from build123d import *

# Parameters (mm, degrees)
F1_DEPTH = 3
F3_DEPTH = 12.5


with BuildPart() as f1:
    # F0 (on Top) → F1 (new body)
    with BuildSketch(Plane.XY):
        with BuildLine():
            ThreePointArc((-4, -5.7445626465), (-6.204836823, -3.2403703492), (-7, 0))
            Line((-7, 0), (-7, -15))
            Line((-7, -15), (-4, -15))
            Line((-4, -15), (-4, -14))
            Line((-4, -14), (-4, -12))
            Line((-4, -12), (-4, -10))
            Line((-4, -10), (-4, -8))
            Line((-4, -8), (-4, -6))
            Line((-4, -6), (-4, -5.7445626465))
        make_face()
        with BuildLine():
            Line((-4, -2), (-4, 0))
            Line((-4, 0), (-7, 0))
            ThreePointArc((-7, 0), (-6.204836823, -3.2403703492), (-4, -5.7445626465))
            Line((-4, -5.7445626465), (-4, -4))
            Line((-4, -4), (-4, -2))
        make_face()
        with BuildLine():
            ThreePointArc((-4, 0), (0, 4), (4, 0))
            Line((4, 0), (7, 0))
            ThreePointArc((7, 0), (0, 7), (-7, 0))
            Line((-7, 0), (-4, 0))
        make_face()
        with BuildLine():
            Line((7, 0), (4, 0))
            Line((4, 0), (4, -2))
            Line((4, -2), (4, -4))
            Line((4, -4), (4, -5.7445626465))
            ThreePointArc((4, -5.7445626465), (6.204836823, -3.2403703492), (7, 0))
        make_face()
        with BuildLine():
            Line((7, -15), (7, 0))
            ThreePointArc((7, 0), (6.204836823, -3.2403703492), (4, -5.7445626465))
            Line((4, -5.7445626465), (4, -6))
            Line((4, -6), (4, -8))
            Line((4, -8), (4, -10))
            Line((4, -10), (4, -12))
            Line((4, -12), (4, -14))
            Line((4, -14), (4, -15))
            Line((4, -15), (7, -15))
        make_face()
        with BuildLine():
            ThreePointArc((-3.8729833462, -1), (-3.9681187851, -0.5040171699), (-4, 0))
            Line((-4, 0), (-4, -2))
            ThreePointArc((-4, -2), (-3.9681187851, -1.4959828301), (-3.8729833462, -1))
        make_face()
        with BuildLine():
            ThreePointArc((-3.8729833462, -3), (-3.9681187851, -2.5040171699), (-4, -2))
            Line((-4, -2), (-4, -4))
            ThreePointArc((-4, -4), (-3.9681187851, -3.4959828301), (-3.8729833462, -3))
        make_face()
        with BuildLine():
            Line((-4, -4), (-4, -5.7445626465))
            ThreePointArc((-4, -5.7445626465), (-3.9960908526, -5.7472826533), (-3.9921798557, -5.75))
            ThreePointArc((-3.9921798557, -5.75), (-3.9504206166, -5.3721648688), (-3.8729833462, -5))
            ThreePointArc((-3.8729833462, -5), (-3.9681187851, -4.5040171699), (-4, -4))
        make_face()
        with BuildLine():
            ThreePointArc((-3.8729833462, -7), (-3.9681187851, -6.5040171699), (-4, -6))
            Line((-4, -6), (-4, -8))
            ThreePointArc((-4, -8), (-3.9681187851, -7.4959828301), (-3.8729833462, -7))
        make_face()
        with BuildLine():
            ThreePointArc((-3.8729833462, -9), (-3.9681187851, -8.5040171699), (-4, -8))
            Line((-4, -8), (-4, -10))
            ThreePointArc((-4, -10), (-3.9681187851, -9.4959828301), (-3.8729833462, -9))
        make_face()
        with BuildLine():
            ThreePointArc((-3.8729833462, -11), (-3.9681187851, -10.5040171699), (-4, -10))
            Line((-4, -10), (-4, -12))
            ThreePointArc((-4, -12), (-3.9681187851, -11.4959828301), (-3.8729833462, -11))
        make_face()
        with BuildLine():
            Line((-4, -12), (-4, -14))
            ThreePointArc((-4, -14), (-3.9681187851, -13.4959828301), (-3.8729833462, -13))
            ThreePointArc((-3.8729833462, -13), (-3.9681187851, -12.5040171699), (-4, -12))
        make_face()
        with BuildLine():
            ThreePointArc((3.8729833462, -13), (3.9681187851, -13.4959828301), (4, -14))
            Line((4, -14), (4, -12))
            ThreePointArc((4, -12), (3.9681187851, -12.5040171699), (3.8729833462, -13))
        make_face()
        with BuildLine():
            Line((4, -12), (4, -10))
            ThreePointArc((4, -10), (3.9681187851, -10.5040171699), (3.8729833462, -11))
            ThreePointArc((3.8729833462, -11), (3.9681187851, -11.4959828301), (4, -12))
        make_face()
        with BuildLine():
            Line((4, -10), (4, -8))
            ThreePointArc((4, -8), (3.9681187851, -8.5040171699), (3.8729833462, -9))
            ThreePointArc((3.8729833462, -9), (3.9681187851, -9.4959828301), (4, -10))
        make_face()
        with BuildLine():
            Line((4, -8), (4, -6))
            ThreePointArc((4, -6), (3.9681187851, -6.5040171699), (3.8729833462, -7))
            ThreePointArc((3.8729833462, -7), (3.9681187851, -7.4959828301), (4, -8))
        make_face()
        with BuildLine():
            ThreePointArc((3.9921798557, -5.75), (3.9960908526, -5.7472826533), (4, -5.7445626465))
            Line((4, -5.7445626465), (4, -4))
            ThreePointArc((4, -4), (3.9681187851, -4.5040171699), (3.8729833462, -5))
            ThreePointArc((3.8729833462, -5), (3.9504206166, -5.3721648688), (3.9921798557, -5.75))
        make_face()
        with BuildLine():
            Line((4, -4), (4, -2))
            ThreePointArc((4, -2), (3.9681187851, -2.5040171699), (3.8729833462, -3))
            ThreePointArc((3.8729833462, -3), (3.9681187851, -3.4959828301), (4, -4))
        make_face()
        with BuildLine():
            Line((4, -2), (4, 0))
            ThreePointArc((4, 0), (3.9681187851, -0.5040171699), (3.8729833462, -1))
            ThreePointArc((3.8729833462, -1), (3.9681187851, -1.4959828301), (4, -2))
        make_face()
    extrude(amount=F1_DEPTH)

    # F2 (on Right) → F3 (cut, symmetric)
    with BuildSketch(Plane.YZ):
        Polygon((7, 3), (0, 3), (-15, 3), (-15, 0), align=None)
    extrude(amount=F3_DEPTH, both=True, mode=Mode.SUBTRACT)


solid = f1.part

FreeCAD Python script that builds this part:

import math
import FreeCAD as App
import Part
import Sketcher

V = App.Vector

doc = App.newDocument("Part")
body = doc.addObject("PartDesign::Body", "Body")

sketch1 = body.newObject("Sketcher::SketchObject", "Sketch")
sketch1.AttachmentSupport = (doc.getObject("XY_Plane"), [""])
sketch1.MapMode = "FlatFace"
sketch1.addGeometry([
    Part.LineSegment(V(-7, 0, 0), V(-7, -15, 0)),
    Part.LineSegment(V(-7, -15, 0), V(-4, -15, 0)),
    Part.LineSegment(V(-4, -15, 0), V(-4, -14, 0)),
    Part.ArcOfCircle(Part.Circle(V(0, -14, 0), V(0, 0, 1), 4), math.radians(165.522488), math.radians(180)),
    Part.ArcOfCircle(Part.Circle(V(0, -12, 0), V(0, 0, 1), 4), math.radians(180), math.radians(194.477512)),
    Part.ArcOfCircle(Part.Circle(V(0, -12, 0), V(0, 0, 1), 4), math.radians(165.522488), math.radians(180)),
    Part.ArcOfCircle(Part.Circle(V(0, -10, 0), V(0, 0, 1), 4), math.radians(180), math.radians(194.477512)),
    Part.ArcOfCircle(Part.Circle(V(0, -10, 0), V(0, 0, 1), 4), math.radians(165.522488), math.radians(180)),
    Part.ArcOfCircle(Part.Circle(V(0, -8, 0), V(0, 0, 1), 4), math.radians(180), math.radians(194.477512)),
    Part.ArcOfCircle(Part.Circle(V(0, -8, 0), V(0, 0, 1), 4), math.radians(165.522488), math.radians(180)),
    Part.ArcOfCircle(Part.Circle(V(0, -6, 0), V(0, 0, 1), 4), math.radians(180), math.radians(194.477512)),
    Part.LineSegment(V(-4, -6, 0), V(-4, -5.744563, 0)),
    Part.ArcOfCircle(Part.Circle(V(0.000133, 0.000191, 0), V(0, 0, 1), 7.000233), math.radians(-124.849904), math.radians(-124.771946)),
    Part.ArcOfCircle(Part.Circle(V(0, -6, 0), V(0, 0, 1), 4), math.radians(165.522488), math.radians(176.416678)),
    Part.ArcOfCircle(Part.Circle(V(0, -4, 0), V(0, 0, 1), 4), math.radians(180), math.radians(194.477512)),
    Part.ArcOfCircle(Part.Circle(V(0, -4, 0), V(0, 0, 1), 4), math.radians(165.522488), math.radians(180)),
    Part.ArcOfCircle(Part.Circle(V(0, -2, 0), V(0, 0, 1), 4), math.radians(180), math.radians(194.477512)),
    Part.ArcOfCircle(Part.Circle(V(0, -2, 0), V(0, 0, 1), 4), math.radians(165.522488), math.radians(180)),
    Part.ArcOfCircle(Part.Circle(V(0, 0, 0), V(0, 0, 1), 4), math.radians(180), math.radians(194.477512)),
    Part.ArcOfCircle(Part.Circle(V(0, 0, 0), V(0, 0, 1), 4), math.radians(0), math.radians(180)),
    Part.ArcOfCircle(Part.Circle(V(0, 0, 0), V(0, 0, 1), 4), math.radians(-14.477512), math.radians(0)),
    Part.ArcOfCircle(Part.Circle(V(0, -2, 0), V(0, 0, 1), 4), math.radians(0), math.radians(14.477512)),
    Part.ArcOfCircle(Part.Circle(V(0, -2, 0), V(0, 0, 1), 4), math.radians(-14.477512), math.radians(0)),
    Part.ArcOfCircle(Part.Circle(V(0, -4, 0), V(0, 0, 1), 4), math.radians(0), math.radians(14.477512)),
    Part.ArcOfCircle(Part.Circle(V(0, -4, 0), V(0, 0, 1), 4), math.radians(-14.477512), math.radians(0)),
    Part.ArcOfCircle(Part.Circle(V(0, -6, 0), V(0, 0, 1), 4), math.radians(3.583322), math.radians(14.477512)),
    Part.ArcOfCircle(Part.Circle(V(-0.000133, 0.000191, 0), V(0, 0, 1), 7.000233), math.radians(-55.228054), math.radians(-55.150096)),
    Part.LineSegment(V(4, -5.744563, 0), V(4, -6, 0)),
    Part.ArcOfCircle(Part.Circle(V(0, -6, 0), V(0, 0, 1), 4), math.radians(-14.477512), math.radians(0)),
    Part.ArcOfCircle(Part.Circle(V(0, -8, 0), V(0, 0, 1), 4), math.radians(0), math.radians(14.477512)),
    Part.ArcOfCircle(Part.Circle(V(0, -8, 0), V(0, 0, 1), 4), math.radians(-14.477512), math.radians(0)),
    Part.ArcOfCircle(Part.Circle(V(0, -10, 0), V(0, 0, 1), 4), math.radians(0), math.radians(14.477512)),
    Part.ArcOfCircle(Part.Circle(V(0, -10, 0), V(0, 0, 1), 4), math.radians(-14.477512), math.radians(0)),
    Part.ArcOfCircle(Part.Circle(V(0, -12, 0), V(0, 0, 1), 4), math.radians(0), math.radians(14.477512)),
    Part.ArcOfCircle(Part.Circle(V(0, -12, 0), V(0, 0, 1), 4), math.radians(-14.477512), math.radians(0)),
    Part.ArcOfCircle(Part.Circle(V(0, -14, 0), V(0, 0, 1), 4), math.radians(0), math.radians(14.477512)),
    Part.LineSegment(V(4, -14, 0), V(4, -15, 0)),
    Part.LineSegment(V(4, -15, 0), V(7, -15, 0)),
    Part.LineSegment(V(7, -15, 0), V(7, 0, 0)),
    Part.ArcOfCircle(Part.Circle(V(0, 0, 0), V(0, 0, 1), 7), math.radians(0), math.radians(180)),
], False)
sketch1.addConstraint([
    Sketcher.Constraint("Coincident", 0, 2, 1, 1),
    Sketcher.Constraint("Coincident", 1, 2, 2, 1),
    Sketcher.Constraint("Tangent", 2, 2, 3, 2),
    Sketcher.Constraint("Coincident", 3, 1, 4, 2),
    Sketcher.Constraint("Tangent", 4, 1, 5, 2),
    Sketcher.Constraint("Coincident", 5, 1, 6, 2),
    Sketcher.Constraint("Tangent", 6, 1, 7, 2),
    Sketcher.Constraint("Coincident", 7, 1, 8, 2),
    Sketcher.Constraint("Tangent", 8, 1, 9, 2),
    Sketcher.Constraint("Coincident", 9, 1, 10, 2),
    Sketcher.Constraint("Tangent", 10, 1, 11, 1),
    Sketcher.Constraint("Coincident", 11, 2, 12, 1),
    Sketcher.Constraint("Coincident", 12, 2, 13, 2),
    Sketcher.Constraint("Coincident", 13, 1, 14, 2),
    Sketcher.Constraint("Tangent", 14, 1, 15, 2),
    Sketcher.Constraint("Coincident", 15, 1, 16, 2),
    Sketcher.Constraint("Tangent", 16, 1, 17, 2),
    Sketcher.Constraint("Coincident", 17, 1, 18, 2),
    Sketcher.Constraint("Tangent", 18, 1, 19, 2),
    Sketcher.Constraint("Tangent", 19, 1, 20, 2),
    Sketcher.Constraint("Coincident", 20, 1, 21, 2),
    Sketcher.Constraint("Tangent", 21, 1, 22, 2),
    Sketcher.Constraint("Coincident", 22, 1, 23, 2),
    Sketcher.Constraint("Tangent", 23, 1, 24, 2),
    Sketcher.Constraint("Coincident", 24, 1, 25, 2),
    Sketcher.Constraint("Coincident", 25, 1, 26, 1),
    Sketcher.Constraint("Coincident", 26, 2, 27, 1),
    Sketcher.Constraint("Tangent", 27, 2, 28, 2),
    Sketcher.Constraint("Coincident", 28, 1, 29, 2),
    Sketcher.Constraint("Tangent", 29, 1, 30, 2),
    Sketcher.Constraint("Coincident", 30, 1, 31, 2),
    Sketcher.Constraint("Tangent", 31, 1, 32, 2),
    Sketcher.Constraint("Coincident", 32, 1, 33, 2),
    Sketcher.Constraint("Tangent", 33, 1, 34, 2),
    Sketcher.Constraint("Coincident", 34, 1, 35, 2),
    Sketcher.Constraint("Tangent", 35, 1, 36, 1),
    Sketcher.Constraint("Coincident", 36, 2, 37, 1),
    Sketcher.Constraint("Coincident", 37, 2, 38, 1),
    Sketcher.Constraint("Tangent", 38, 2, 39, 1),
    Sketcher.Constraint("Tangent", 39, 2, 0, 1),
    Sketcher.Constraint("Vertical", 0),
    Sketcher.Constraint("Horizontal", 1),
    Sketcher.Constraint("Vertical", 2),
    Sketcher.Constraint("Vertical", 11),
    Sketcher.Constraint("Vertical", 27),
    Sketcher.Constraint("Vertical", 36),
    Sketcher.Constraint("Horizontal", 37),
    Sketcher.Constraint("Vertical", 38),
    Sketcher.Constraint("Coincident", 18, 3, -1, 1),
    Sketcher.Constraint("Coincident", 39, 3, -1, 1),
    Sketcher.Constraint("Coincident", 13, 3, 10, 3),
    Sketcher.Constraint("Coincident", 21, 3, 16, 3),
    Sketcher.Constraint("Coincident", 23, 3, 14, 3),
    Sketcher.Constraint("Coincident", 25, 3, 10, 3),
    Sketcher.Constraint("Coincident", 28, 3, 10, 3),
    Sketcher.Constraint("Coincident", 29, 3, 8, 3),
    Sketcher.Constraint("Coincident", 31, 3, 6, 3),
    Sketcher.Constraint("Coincident", 33, 3, 4, 3),
    Sketcher.Constraint("Coincident", 35, 3, 3, 3),
    Sketcher.Constraint("Equal", 3, 4),
    Sketcher.Constraint("Equal", 4, 5),
    Sketcher.Constraint("Equal", 5, 6),
    Sketcher.Constraint("Equal", 6, 7),
    Sketcher.Constraint("Equal", 7, 8),
    Sketcher.Constraint("Equal", 8, 9),
    Sketcher.Constraint("Equal", 9, 10),
    Sketcher.Constraint("Equal", 10, 13),
    Sketcher.Constraint("Equal", 13, 14),
    Sketcher.Constraint("Equal", 14, 15),
    Sketcher.Constraint("Equal", 15, 16),
    Sketcher.Constraint("Equal", 16, 17),
    Sketcher.Constraint("Equal", 17, 18),
    Sketcher.Constraint("Equal", 18, 19),
    Sketcher.Constraint("Equal", 19, 20),
    Sketcher.Constraint("Equal", 20, 21),
    Sketcher.Constraint("Equal", 21, 22),
    Sketcher.Constraint("Equal", 22, 23),
    Sketcher.Constraint("Equal", 23, 24),
    Sketcher.Constraint("Equal", 24, 25),
    Sketcher.Constraint("Equal", 12, 26),
    Sketcher.Constraint("Equal", 25, 28),
    Sketcher.Constraint("Equal", 28, 29),
    Sketcher.Constraint("Equal", 29, 30),
    Sketcher.Constraint("Equal", 30, 31),
    Sketcher.Constraint("Equal", 31, 32),
    Sketcher.Constraint("Equal", 32, 33),
    Sketcher.Constraint("Equal", 33, 34),
    Sketcher.Constraint("Equal", 34, 35),
    Sketcher.Constraint("Symmetric", 12, 3, 26, 3, -2),
    Sketcher.Constraint("Symmetric", 16, 1, 21, 1, -2),
    Sketcher.Constraint("Symmetric", 14, 1, 23, 1, -2),
    Sketcher.Constraint("Symmetric", 9, 1, 28, 1, -2),
    Sketcher.Constraint("Symmetric", 6, 1, 31, 1, -2),
    Sketcher.Constraint("Symmetric", 4, 1, 33, 1, -2),
    Sketcher.Constraint("Symmetric", 1, 2, 36, 2, -2),
    Sketcher.Constraint("PointOnObject", 18, 1, -1),
    Sketcher.Constraint("PointOnObject", 19, 1, -1),
    Sketcher.Constraint("Horizontal", 34, 3, 4, 1),
    Sketcher.Constraint("Horizontal", 32, 3, 6, 1),
    Sketcher.Constraint("Horizontal", 30, 3, 8, 1),
    Sketcher.Constraint("Horizontal", 24, 3, 14, 1),
    Sketcher.Constraint("Horizontal", 22, 3, 16, 1),
    Sketcher.Constraint("Horizontal", 8, 1, 29, 1),
    Sketcher.Constraint("Vertical", 3, 1, 5, 1),
    Sketcher.Constraint("Vertical", 5, 1, 7, 1),
    Sketcher.Constraint("Vertical", 7, 1, 9, 1),
    Sketcher.Constraint("Vertical", 9, 1, 13, 1),
    Sketcher.Constraint("Vertical", 13, 1, 15, 1),
    Sketcher.Constraint("Vertical", 15, 1, 17, 1),
    Sketcher.Constraint("Radius", 3, 4.0),
    Sketcher.Constraint("Radius", 39, 7.0),
    Sketcher.Constraint("DistanceY", 0, 2, 0, 1, 15.0),
    Sketcher.Constraint("DistanceY", 2, 1, 2, 2, 1.0),
    Sketcher.Constraint("DistanceY", 12, 2, -1, 1, 5.75),
    Sketcher.Constraint("Radius", 12, 7.000233),
    Sketcher.Constraint("DistanceY", -1, 1, 12, 3, 0.000191),
])
pad1 = body.newObject("PartDesign::Pad", "Pad")
pad1.Profile = sketch1
pad1.Length = 3

sketch2 = body.newObject("Sketcher::SketchObject", "Sketch001")
sketch2.AttachmentSupport = (doc.getObject("YZ_Plane"), [""])
sketch2.MapMode = "FlatFace"
sketch2.addGeometry([
    Part.LineSegment(V(7, 3, 0), V(-15, 3, 0)),
    Part.LineSegment(V(-15, 3, 0), V(-15, 0, 0)),
    Part.LineSegment(V(-15, 0, 0), V(7, 3, 0)),
], False)
sketch2.addConstraint([
    Sketcher.Constraint("Coincident", 0, 2, 1, 1),
    Sketcher.Constraint("Coincident", 1, 2, 2, 1),
    Sketcher.Constraint("Coincident", 2, 2, 0, 1),
    Sketcher.Constraint("Horizontal", 0),
    Sketcher.Constraint("Vertical", 1),
    Sketcher.Constraint("PointOnObject", 1, 2, -1),
    Sketcher.Constraint("DistanceX", 0, 2, 0, 1, 22.0),
    Sketcher.Constraint("DistanceY", 1, 2, 1, 1, 3.0),
    Sketcher.Constraint("DistanceX", 0, 2, -1, 1, 15.0),
])
pocket1 = body.newObject("PartDesign::Pocket", "Pocket")
pocket1.Profile = sketch2
pocket1.Length = 25
pocket1.Midplane = True

doc.recompute()
